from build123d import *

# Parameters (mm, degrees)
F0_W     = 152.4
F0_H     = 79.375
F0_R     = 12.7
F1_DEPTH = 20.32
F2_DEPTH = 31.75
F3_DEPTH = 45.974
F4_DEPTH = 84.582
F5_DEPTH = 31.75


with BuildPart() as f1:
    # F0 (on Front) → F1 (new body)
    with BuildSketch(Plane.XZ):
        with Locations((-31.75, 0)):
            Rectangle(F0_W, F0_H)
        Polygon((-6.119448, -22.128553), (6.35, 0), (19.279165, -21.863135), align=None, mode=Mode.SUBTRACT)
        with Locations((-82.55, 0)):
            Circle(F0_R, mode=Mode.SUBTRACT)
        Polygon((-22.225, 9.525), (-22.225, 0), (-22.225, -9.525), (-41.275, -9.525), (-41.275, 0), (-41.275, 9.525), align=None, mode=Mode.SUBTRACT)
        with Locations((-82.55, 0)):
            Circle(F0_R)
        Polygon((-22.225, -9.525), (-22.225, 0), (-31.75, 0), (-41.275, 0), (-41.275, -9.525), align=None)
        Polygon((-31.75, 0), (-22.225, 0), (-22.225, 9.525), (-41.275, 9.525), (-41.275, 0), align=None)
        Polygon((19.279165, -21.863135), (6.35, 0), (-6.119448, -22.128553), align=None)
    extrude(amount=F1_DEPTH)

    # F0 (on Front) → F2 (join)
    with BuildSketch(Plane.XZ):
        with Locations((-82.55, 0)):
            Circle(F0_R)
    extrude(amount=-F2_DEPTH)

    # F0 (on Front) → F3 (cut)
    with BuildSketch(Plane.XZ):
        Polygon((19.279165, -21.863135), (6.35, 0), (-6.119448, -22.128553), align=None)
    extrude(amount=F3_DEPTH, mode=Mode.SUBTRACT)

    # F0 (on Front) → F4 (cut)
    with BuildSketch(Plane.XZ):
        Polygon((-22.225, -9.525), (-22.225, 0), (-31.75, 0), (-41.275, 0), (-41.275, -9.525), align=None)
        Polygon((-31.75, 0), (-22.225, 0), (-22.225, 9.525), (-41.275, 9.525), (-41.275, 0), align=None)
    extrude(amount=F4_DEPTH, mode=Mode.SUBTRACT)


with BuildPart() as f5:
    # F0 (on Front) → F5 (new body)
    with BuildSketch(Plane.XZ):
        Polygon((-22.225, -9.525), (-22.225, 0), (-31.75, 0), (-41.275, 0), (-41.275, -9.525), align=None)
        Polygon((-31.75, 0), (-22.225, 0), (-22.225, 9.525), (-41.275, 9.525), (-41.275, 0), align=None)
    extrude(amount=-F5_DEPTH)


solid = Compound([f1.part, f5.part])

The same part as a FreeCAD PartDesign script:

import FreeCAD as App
import Part
import Sketcher

V = App.Vector
Q = App.Units.Quantity


def add_polygon(sketch, points):
    """Adds a closed chain of lines whose ends are joined by coincident constraints."""
    first, n = sketch.GeometryCount, len(points)
    for a, b in zip(points, points[1:] + points[:1]):
        sketch.addGeometry(Part.LineSegment(App.Vector(*a, 0), App.Vector(*b, 0)), False)
    for i in range(n):
        sketch.addConstraint(Sketcher.Constraint("Coincident", first + i, 2, first + (i + 1) % n, 1))

doc = App.newDocument("Part")
body = doc.addObject("PartDesign::Body", "Body")

sketch1 = body.newObject("Sketcher::SketchObject", "Sketch")
sketch1.AttachmentSupport = (doc.getObject("XZ_Plane"), [""])
sketch1.MapMode = "FlatFace"
add_polygon(sketch1, [(-107.95, 39.6875), (-107.95, -39.6875), (44.45, -39.6875), (44.45, 39.6875)])
sketch1.addConstraint(Sketcher.Constraint("Vertical", 0))
sketch1.addConstraint(Sketcher.Constraint("Horizontal", 1))
sketch1.addConstraint(Sketcher.Constraint("Vertical", 2))
sketch1.addConstraint(Sketcher.Constraint("Horizontal", 3))
sketch1.addConstraint(Sketcher.Constraint("DistanceX", 1, 1, 1, 2, Q("6 in")))
sketch1.addConstraint(Sketcher.Constraint("DistanceY", 0, 2, 0, 1, Q("3.125 in")))
sketch1.addConstraint(Sketcher.Constraint("DistanceX", 0, 2, -1, 1, Q("4.25 in")))
sketch1.addConstraint(Sketcher.Constraint("DistanceY", 0, 2, -1, 1, Q("1.5625 in")))
pad1 = body.newObject("PartDesign::Pad", "Pad")
pad1.Profile = sketch1
pad1.Length = Q("0.8 in")

sketch2 = body.newObject("Sketcher::SketchObject", "Sketch001")
sketch2.AttachmentSupport = (doc.getObject("XZ_Plane"), [""])
sketch2.MapMode = "FlatFace"
sketch2.addGeometry(Part.Circle(V(-82.55, 0, 0), V(0, 0, 1), 12.7), False)
sketch2.addConstraint(Sketcher.Constraint("PointOnObject", 0, 3, -1))
sketch2.addConstraint(Sketcher.Constraint("Diameter", 0, Q("1 in")))
sketch2.addConstraint(Sketcher.Constraint("DistanceX", 0, 3, -1, 1, Q("3.25 in")))
pad2 = body.newObject("PartDesign::Pad", "Pad001")
pad2.Profile = sketch2
pad2.Length = Q("1.25 in")
pad2.Reversed = True

sketch3 = body.newObject("Sketcher::SketchObject", "Sketch002")
sketch3.AttachmentSupport = (doc.getObject("XZ_Plane"), [""])
sketch3.MapMode = "FlatFace"
add_polygon(sketch3, [(19.279165, -21.863135), (6.35, 0), (-6.119448, -22.128553)])
sketch3.addConstraint(Sketcher.Constraint("PointOnObject", 0, 2, -1))
sketch3.addConstraint(Sketcher.Constraint("Equal", 0, 1))
sketch3.addConstraint(Sketcher.Constraint("Equal", 1, 2))
sketch3.addConstraint(Sketcher.Constraint("Distance", 0, Q("1 in")))
sketch3.addConstraint(Sketcher.Constraint("DistanceX", -1, 1, 0, 2, Q("0.25 in")))
sketch3.addConstraint(Sketcher.Constraint("DistanceX", 1, 2, -1, 1, Q("6.119448 mm")))
pocket1 = body.newObject("PartDesign::Pocket", "Pocket")
pocket1.Profile = sketch3
pocket1.Length = Q("1.81 in")
pocket1.Reversed = True

sketch4 = body.newObject("Sketcher::SketchObject", "Sketch003")
sketch4.AttachmentSupport = (doc.getObject("XZ_Plane"), [""])
sketch4.MapMode = "FlatFace"
add_polygon(sketch4, [(-22.225, -9.525), (-22.225, 9.525), (-41.275, 9.525), (-41.275, -9.525)])
sketch4.addConstraint(Sketcher.Constraint("Vertical", 0))
sketch4.addConstraint(Sketcher.Constraint("Horizontal", 1))
sketch4.addConstraint(Sketcher.Constraint("Vertical", 2))
sketch4.addConstraint(Sketcher.Constraint("Horizontal", 3))
sketch4.addConstraint(Sketcher.Constraint("Equal", 3, 0))
sketch4.addConstraint(Sketcher.Constraint("DistanceX", 1, 2, 1, 1, Q("0.75 in")))
sketch4.addConstraint(Sketcher.Constraint("DistanceX", 0, 2, -1, 1, Q("0.875 in")))
sketch4.addConstraint(Sketcher.Constraint("DistanceY", -1, 1, 0, 2, Q("0.375 in")))
pocket2 = body.newObject("PartDesign::Pocket", "Pocket001")
pocket2.Profile = sketch4
pocket2.Length = Q("3.33 in")
pocket2.Reversed = True
body2 = doc.addObject("PartDesign::Body", "Body001")

sketch5 = body2.newObject("Sketcher::SketchObject", "Sketch004")
sketch5.AttachmentSupport = (doc.getObject("XZ_Plane001"), [""])
sketch5.MapMode = "FlatFace"
add_polygon(sketch5, [(-22.225, -9.525), (-22.225, 9.525), (-41.275, 9.525), (-41.275, -9.525)])
sketch5.addConstraint(Sketcher.Constraint("Vertical", 0))
sketch5.addConstraint(Sketcher.Constraint("Horizontal", 1))
sketch5.addConstraint(Sketcher.Constraint("Vertical", 2))
sketch5.addConstraint(Sketcher.Constraint("Horizontal", 3))
sketch5.addConstraint(Sketcher.Constraint("Equal", 3, 0))
sketch5.addConstraint(Sketcher.Constraint("DistanceX", 1, 2, 1, 1, Q("0.75 in")))
sketch5.addConstraint(Sketcher.Constraint("DistanceX", 0, 2, -1, 1, Q("0.875 in")))
sketch5.addConstraint(Sketcher.Constraint("DistanceY", -1, 1, 0, 2, Q("0.375 in")))
pad3 = body2.newObject("PartDesign::Pad", "Pad002")
pad3.Profile = sketch5
pad3.Length = Q("1.25 in")
pad3.Reversed = True

doc.recompute()
